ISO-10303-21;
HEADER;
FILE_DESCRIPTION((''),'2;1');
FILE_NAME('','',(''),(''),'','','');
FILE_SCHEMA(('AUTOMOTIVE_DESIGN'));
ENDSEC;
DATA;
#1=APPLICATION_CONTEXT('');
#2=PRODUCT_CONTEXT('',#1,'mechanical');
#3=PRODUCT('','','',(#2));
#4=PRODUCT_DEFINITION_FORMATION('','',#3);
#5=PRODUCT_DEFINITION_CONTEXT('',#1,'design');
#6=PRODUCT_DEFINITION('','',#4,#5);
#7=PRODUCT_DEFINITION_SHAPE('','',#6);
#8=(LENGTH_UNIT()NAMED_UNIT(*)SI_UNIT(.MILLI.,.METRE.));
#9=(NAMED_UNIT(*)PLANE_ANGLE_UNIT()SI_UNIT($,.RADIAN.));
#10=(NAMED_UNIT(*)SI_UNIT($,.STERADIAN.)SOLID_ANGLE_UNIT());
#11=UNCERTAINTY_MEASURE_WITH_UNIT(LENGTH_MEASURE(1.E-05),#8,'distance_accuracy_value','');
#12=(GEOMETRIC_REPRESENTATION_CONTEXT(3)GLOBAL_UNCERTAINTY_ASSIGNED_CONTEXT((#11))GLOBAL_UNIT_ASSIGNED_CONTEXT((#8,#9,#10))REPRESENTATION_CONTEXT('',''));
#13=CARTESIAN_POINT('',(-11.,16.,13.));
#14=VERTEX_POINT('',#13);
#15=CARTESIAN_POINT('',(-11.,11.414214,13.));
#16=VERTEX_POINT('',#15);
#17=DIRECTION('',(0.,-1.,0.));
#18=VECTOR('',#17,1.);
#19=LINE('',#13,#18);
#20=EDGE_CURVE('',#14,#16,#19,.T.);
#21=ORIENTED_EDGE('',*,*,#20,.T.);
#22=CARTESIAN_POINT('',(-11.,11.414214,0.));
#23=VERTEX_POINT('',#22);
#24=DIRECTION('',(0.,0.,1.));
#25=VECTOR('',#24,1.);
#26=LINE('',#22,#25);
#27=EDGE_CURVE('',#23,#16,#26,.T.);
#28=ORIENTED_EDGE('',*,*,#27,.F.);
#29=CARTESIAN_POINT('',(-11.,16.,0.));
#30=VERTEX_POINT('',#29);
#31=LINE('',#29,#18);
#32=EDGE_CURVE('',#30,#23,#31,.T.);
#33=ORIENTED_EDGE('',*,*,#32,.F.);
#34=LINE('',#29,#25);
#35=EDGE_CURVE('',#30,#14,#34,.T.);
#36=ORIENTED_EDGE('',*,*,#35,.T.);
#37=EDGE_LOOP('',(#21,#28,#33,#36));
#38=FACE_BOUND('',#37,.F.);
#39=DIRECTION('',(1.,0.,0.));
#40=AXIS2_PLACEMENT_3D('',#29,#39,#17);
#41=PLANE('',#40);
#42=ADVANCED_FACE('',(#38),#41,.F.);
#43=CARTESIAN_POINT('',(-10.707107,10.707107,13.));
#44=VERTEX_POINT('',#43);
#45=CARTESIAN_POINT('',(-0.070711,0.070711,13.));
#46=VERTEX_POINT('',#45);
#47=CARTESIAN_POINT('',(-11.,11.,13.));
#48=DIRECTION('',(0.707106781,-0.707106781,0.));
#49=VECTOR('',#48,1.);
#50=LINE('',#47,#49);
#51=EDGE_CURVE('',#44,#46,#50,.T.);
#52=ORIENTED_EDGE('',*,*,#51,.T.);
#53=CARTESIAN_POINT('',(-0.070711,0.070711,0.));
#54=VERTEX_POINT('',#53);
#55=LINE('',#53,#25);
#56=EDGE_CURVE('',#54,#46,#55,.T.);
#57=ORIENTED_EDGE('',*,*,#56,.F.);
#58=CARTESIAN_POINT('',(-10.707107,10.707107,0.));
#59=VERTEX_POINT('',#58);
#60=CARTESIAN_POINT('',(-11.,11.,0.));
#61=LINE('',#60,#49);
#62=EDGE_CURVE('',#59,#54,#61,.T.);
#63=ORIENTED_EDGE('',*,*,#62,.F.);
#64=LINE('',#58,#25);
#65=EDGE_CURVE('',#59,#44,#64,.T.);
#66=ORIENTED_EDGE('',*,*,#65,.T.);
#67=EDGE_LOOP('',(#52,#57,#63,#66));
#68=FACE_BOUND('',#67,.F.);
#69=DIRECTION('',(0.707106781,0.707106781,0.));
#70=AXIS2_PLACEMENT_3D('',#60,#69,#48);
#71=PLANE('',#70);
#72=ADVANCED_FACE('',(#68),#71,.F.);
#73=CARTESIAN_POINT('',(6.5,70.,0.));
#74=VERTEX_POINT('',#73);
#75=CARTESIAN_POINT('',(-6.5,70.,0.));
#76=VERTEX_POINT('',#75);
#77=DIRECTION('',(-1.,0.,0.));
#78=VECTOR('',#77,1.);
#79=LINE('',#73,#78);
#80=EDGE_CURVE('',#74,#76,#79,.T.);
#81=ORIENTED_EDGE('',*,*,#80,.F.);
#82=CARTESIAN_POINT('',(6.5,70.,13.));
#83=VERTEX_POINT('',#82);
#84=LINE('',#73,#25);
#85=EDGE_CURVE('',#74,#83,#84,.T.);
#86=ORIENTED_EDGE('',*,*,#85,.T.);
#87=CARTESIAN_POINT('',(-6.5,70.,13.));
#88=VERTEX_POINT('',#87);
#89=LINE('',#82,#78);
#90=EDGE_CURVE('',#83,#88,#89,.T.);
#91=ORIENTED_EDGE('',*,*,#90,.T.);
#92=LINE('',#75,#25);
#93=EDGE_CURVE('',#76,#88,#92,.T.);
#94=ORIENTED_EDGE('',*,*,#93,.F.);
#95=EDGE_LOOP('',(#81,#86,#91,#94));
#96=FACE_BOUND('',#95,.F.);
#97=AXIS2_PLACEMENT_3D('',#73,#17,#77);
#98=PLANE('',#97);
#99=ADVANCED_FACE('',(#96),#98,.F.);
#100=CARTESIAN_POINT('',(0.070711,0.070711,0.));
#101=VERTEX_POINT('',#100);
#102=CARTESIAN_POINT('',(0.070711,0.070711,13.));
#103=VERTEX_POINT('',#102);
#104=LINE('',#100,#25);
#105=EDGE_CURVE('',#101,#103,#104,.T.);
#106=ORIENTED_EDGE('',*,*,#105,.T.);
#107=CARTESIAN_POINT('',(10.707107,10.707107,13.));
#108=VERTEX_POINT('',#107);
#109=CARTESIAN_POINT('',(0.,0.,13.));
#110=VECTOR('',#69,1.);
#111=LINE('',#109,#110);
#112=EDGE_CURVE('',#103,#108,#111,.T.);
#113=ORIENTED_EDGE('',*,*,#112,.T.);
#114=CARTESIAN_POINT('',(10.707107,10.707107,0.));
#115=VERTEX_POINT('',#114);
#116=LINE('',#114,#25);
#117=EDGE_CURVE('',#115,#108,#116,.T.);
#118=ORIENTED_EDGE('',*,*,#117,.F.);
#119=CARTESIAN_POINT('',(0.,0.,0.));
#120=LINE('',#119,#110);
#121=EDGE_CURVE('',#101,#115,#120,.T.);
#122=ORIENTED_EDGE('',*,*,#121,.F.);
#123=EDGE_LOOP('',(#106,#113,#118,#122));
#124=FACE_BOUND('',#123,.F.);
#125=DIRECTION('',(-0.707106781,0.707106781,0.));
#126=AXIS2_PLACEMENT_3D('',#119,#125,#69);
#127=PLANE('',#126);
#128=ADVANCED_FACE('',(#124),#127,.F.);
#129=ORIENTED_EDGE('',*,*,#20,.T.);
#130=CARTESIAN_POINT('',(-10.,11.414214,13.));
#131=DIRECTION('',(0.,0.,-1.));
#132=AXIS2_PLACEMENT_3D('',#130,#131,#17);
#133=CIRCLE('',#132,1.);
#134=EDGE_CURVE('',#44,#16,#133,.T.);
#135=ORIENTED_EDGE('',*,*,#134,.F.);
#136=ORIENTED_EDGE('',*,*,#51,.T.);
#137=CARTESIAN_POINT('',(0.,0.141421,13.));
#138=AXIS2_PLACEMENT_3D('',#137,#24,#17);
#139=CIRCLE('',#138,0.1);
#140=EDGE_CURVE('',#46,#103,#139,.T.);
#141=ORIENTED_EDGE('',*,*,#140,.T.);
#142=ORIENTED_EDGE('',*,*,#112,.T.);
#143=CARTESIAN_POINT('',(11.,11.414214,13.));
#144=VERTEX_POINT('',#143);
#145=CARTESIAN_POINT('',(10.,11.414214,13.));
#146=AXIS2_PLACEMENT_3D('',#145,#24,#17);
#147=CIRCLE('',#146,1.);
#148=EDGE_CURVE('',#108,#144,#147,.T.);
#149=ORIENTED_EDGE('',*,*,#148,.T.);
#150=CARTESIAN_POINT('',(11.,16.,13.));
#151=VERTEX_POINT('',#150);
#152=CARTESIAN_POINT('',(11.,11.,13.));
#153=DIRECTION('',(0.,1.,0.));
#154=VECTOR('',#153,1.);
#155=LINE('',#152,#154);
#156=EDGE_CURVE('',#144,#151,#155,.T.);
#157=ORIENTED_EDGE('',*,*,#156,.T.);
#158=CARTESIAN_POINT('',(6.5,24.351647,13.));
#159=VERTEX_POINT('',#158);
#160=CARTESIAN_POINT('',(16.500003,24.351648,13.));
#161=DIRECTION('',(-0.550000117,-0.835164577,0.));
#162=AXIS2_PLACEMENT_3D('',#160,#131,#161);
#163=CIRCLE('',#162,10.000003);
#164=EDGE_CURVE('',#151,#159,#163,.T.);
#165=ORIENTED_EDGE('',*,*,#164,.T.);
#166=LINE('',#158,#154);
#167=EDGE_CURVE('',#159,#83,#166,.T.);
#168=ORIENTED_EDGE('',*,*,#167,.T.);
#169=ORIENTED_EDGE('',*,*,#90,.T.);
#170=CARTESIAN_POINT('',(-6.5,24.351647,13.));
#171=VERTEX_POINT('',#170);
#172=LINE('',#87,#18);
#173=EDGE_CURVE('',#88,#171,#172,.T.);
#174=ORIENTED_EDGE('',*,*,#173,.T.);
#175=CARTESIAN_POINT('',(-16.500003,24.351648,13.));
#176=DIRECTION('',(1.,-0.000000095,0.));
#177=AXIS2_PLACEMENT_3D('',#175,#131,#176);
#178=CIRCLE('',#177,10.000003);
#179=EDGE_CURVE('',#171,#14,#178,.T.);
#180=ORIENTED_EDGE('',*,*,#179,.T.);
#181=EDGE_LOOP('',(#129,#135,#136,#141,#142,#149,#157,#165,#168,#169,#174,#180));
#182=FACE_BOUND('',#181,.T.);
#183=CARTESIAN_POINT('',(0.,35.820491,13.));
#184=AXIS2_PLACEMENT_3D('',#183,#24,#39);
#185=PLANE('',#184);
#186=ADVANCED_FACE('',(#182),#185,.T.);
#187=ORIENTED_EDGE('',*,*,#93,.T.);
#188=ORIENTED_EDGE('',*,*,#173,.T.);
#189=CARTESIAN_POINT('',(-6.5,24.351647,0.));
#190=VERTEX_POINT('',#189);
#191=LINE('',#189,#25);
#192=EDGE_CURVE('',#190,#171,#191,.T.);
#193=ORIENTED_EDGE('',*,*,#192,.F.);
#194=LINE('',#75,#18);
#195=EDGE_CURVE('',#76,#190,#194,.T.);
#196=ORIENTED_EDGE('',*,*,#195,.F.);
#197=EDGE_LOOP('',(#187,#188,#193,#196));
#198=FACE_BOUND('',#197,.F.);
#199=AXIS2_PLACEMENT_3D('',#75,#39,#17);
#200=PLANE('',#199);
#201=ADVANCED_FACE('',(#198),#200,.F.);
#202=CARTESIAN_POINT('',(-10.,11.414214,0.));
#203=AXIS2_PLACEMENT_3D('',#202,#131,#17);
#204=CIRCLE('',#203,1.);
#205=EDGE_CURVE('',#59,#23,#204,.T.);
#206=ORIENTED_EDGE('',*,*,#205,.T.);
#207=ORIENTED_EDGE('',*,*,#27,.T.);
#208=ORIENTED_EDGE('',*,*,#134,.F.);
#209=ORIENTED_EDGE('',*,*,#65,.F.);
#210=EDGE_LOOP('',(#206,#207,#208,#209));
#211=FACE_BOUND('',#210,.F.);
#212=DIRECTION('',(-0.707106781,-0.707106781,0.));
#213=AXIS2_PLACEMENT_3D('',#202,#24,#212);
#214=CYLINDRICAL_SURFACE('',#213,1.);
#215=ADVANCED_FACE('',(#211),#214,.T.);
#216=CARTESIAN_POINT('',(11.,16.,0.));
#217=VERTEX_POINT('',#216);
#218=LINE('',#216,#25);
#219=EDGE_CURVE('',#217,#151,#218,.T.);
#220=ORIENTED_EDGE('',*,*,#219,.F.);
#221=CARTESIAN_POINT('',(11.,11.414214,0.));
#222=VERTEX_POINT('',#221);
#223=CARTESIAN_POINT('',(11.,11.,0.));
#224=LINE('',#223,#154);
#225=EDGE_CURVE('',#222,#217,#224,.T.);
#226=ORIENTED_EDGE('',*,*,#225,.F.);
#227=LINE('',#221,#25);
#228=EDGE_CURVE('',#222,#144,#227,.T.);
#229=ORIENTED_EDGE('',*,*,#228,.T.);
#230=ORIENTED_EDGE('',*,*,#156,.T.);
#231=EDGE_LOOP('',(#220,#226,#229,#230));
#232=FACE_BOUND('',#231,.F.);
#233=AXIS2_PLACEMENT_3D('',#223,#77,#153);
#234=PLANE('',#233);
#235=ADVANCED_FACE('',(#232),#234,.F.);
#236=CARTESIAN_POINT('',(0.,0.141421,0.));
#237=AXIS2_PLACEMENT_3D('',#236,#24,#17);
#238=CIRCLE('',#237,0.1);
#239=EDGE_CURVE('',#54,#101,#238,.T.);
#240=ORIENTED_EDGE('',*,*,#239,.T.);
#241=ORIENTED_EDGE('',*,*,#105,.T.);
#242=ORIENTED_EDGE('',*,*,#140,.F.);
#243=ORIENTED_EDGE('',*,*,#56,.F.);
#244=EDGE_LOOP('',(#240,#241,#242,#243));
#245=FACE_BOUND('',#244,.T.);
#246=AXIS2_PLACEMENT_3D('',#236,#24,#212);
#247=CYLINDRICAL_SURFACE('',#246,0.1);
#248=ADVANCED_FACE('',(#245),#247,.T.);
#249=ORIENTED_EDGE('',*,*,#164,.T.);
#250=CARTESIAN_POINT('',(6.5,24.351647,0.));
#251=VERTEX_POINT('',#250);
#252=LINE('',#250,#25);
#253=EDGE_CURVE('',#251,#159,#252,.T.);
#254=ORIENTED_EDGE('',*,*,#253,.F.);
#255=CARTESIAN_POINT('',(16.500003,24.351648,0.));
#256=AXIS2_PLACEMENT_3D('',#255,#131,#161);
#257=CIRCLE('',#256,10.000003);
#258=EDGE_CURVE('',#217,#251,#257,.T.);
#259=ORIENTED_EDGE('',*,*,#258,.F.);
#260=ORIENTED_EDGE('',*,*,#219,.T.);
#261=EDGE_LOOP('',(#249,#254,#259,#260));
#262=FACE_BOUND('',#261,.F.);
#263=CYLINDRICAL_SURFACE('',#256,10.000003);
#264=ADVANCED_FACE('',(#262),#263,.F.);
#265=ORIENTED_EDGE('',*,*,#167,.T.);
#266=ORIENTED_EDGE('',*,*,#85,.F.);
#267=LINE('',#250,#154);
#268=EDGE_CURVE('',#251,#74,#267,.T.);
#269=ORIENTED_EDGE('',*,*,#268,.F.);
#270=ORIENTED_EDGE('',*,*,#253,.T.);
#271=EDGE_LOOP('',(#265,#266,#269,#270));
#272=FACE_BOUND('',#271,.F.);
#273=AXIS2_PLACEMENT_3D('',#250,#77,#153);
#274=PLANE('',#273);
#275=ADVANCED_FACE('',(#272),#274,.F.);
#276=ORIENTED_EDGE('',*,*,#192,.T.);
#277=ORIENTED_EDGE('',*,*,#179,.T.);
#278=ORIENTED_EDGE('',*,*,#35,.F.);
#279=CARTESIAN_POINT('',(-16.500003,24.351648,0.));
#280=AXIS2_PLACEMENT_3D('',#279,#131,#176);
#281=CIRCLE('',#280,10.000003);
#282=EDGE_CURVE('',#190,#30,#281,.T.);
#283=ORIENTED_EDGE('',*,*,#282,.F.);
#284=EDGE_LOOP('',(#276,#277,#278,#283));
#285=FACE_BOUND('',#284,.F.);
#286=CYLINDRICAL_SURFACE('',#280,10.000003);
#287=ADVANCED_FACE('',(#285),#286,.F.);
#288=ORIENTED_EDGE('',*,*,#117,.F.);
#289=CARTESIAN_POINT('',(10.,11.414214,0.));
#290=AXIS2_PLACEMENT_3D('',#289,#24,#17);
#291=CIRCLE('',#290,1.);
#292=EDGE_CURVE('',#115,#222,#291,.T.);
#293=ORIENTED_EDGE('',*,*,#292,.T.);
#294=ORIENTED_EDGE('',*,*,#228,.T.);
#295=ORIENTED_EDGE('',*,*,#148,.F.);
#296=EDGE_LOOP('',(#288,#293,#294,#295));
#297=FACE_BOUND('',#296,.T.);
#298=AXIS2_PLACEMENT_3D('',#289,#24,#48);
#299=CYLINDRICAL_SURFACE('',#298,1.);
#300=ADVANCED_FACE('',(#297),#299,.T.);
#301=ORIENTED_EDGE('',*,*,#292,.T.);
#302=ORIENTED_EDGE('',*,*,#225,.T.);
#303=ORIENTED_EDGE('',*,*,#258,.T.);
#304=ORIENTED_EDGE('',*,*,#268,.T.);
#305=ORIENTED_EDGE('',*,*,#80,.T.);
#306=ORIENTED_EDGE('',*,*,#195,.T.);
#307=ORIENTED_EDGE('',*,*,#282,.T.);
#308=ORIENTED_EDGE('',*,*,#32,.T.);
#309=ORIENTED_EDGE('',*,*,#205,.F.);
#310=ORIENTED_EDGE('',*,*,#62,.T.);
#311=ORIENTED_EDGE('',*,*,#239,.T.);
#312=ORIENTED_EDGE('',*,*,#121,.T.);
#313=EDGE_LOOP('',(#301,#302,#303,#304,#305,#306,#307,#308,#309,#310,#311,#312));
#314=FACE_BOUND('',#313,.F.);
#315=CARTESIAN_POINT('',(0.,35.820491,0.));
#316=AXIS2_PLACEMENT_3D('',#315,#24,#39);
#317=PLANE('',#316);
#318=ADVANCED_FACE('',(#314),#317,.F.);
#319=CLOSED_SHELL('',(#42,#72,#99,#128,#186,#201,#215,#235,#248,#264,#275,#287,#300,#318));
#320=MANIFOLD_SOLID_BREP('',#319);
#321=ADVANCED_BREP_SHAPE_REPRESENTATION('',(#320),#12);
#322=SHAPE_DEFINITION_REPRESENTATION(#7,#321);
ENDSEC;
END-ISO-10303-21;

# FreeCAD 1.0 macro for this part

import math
import FreeCAD as App
import Part
import Sketcher
Q = App.Units.Quantity


def edges_at(feature, points):
    """Names of the edges that pass closest to the given points."""
    edges = feature.Shape.Edges
    near = lambda p: min(range(len(edges)), key=lambda i: edges[i].distToShape(Part.Vertex(*p))[0])
    return sorted({f"Edge{near(p) + 1}" for p in points})

doc = App.newDocument("Part")
body = doc.addObject("PartDesign::Body", "Body")

# Sketch on XY plane
sketch1 = doc.addObject("Sketcher::SketchObject", "Sketch")
body.addObject(sketch1)
sketch1.AttachmentSupport = (doc.XY_Plane, [""])
sketch1.MapMode = "FlatFace"
sketch1.addGeometry(Part.LineSegment(App.Vector(6, 24, 0), App.Vector(6, 70, 0)), False)
sketch1.addGeometry(Part.LineSegment(App.Vector(6, 70, 0), App.Vector(-6, 70, 0)), False)
sketch1.addGeometry(Part.LineSegment(App.Vector(-6, 70, 0), App.Vector(-6, 24, 0)), False)
sketch1.addGeometry(Part.ArcOfCircle(Part.Circle(App.Vector(-17, 24, 0), App.Vector(0, 0, 1), 10), math.radians(-57), math.radians(0)), False)
sketch1.addGeometry(Part.LineSegment(App.Vector(-11, 16, 0), App.Vector(-11, 11, 0)), False)
sketch1.addGeometry(Part.LineSegment(App.Vector(-11, 11, 0), App.Vector(0, 0, 0)), False)
sketch1.addGeometry(Part.LineSegment(App.Vector(0, 0, 0), App.Vector(11, 11, 0)), False)
sketch1.addGeometry(Part.LineSegment(App.Vector(11, 11, 0), App.Vector(11, 16, 0)), False)
sketch1.addGeometry(Part.ArcOfCircle(Part.Circle(App.Vector(17, 24, 0), App.Vector(0, 0, 1), 10), math.radians(-180), math.radians(-123)), False)
sketch1.addConstraint(Sketcher.Constraint("Coincident", 0, 2, 1, 1))
sketch1.addConstraint(Sketcher.Constraint("Coincident", 1, 2, 2, 1))
sketch1.addConstraint(Sketcher.Constraint("Tangent", 2, 2, 3, 2))
sketch1.addConstraint(Sketcher.Constraint("Coincident", 3, 1, 4, 1))
sketch1.addConstraint(Sketcher.Constraint("Coincident", 4, 2, 5, 1))
sketch1.addConstraint(Sketcher.Constraint("Coincident", 5, 2, 6, 1))
sketch1.addConstraint(Sketcher.Constraint("Coincident", 6, 2, 7, 1))
sketch1.addConstraint(Sketcher.Constraint("Coincident", 7, 2, 8, 2))
sketch1.addConstraint(Sketcher.Constraint("Tangent", 8, 1, 0, 1))
sketch1.addConstraint(Sketcher.Constraint("Vertical", 0))
sketch1.addConstraint(Sketcher.Constraint("Horizontal", 1))
sketch1.addConstraint(Sketcher.Constraint("Vertical", 2))
sketch1.addConstraint(Sketcher.Constraint("Vertical", 4))
sketch1.addConstraint(Sketcher.Constraint("Vertical", 7))
sketch1.addConstraint(Sketcher.Constraint("Coincident", 5, 2, -1, 1))
sketch1.addConstraint(Sketcher.Constraint("Equal", 3, 8))
sketch1.addConstraint(Sketcher.Constraint("Symmetric", 3, 3, 8, 3, -2))
sketch1.addConstraint(Sketcher.Constraint("Symmetric", 4, 2, 6, 2, -2))
sketch1.addConstraint(Sketcher.Constraint("Perpendicular", 5, 6))
sketch1.addConstraint(Sketcher.Constraint("DistanceX", 1, 2, 1, 1, Q("13 mm")))
sketch1.addConstraint(Sketcher.Constraint("DistanceY", 4, 2, 4, 1, Q("5 mm")))
sketch1.addConstraint(Sketcher.Constraint("DistanceY", -1, 1, 0, 2, Q("70 mm")))
sketch1.addConstraint(Sketcher.Constraint("DistanceX", 3, 1, -1, 1, Q("11 mm")))
sketch1.addConstraint(Sketcher.Constraint("Radius", 3, Q("10.000003 mm")))
pad1 = doc.addObject("PartDesign::Pad", "Pad")
body.addObject(pad1)
pad1.Profile = sketch1
pad1.Length = 13
doc.recompute()

fillet = doc.addObject("PartDesign::Fillet", "Fillet")
body.addObject(fillet)
fillet.Base = (pad1, edges_at(pad1, [(0, 0, 6.5)]))
fillet.Radius = 0.1
doc.recompute()

fillet2 = doc.addObject("PartDesign::Fillet", "Fillet001")
body.addObject(fillet2)
fillet2.Base = (fillet, edges_at(fillet, [(-11, 11, 6.5), (11, 11, 6.5)]))
fillet2.Radius = 1

doc.recompute()
